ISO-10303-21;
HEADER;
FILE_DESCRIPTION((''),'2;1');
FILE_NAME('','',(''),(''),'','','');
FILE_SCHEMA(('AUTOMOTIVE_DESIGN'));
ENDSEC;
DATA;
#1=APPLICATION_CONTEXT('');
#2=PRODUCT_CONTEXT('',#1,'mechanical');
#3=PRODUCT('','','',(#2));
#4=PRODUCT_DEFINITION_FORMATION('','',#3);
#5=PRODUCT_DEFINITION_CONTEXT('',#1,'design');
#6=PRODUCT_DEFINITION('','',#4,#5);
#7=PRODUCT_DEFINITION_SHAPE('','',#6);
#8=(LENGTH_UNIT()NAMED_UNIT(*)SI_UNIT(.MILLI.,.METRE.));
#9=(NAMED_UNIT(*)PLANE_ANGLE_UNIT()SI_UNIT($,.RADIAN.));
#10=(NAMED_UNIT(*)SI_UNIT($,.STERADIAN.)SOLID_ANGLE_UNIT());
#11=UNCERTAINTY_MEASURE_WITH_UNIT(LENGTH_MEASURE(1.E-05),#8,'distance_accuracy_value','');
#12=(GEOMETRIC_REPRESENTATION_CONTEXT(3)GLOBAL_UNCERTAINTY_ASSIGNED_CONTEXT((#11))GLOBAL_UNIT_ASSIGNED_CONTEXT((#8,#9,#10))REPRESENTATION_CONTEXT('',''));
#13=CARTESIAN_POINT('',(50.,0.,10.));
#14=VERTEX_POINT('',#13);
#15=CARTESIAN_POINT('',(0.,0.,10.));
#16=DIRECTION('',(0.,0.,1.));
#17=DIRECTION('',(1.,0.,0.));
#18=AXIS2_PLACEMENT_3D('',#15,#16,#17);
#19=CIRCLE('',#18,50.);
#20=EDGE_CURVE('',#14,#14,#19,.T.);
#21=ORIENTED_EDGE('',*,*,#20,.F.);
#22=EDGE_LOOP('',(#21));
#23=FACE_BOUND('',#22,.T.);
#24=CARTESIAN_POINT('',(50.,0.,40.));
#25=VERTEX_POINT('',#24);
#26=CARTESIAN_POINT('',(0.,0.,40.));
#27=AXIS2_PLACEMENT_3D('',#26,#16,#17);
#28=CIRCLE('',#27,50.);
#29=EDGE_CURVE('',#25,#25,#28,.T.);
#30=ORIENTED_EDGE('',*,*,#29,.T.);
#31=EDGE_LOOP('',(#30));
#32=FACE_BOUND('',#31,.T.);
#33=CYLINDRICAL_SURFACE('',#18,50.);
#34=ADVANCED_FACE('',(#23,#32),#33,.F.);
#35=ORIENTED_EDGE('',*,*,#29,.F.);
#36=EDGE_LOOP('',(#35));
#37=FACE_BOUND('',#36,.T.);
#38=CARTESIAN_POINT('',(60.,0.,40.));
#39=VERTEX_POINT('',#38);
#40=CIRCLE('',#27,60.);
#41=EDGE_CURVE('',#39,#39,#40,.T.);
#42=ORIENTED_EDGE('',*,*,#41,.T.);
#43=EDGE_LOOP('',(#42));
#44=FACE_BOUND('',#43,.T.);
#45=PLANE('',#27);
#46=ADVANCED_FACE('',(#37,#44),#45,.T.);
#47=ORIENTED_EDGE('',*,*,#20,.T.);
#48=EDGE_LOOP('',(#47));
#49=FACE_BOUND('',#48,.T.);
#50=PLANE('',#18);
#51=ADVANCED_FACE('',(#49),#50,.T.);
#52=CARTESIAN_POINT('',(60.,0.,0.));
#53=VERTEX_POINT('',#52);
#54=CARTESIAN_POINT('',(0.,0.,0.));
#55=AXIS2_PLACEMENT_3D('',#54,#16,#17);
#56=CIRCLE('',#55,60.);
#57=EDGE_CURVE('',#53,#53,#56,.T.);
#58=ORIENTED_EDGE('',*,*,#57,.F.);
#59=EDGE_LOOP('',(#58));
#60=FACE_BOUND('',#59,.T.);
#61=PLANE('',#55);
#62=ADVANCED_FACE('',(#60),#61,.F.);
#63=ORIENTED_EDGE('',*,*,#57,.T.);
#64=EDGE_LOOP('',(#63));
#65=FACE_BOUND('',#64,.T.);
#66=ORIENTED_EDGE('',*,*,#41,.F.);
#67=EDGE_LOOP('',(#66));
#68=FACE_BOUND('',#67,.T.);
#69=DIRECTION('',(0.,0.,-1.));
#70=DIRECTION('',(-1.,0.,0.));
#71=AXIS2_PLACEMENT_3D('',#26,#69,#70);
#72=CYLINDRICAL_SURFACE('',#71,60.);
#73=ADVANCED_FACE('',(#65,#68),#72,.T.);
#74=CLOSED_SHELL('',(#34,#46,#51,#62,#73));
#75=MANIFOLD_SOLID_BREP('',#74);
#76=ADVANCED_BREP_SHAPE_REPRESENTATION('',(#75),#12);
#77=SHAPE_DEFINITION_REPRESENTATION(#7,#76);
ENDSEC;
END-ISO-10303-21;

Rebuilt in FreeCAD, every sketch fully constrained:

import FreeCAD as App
import Part
import Sketcher
from FreeCAD import Vector
Q = App.Units.Quantity

doc = App.newDocument("Part")
body = doc.addObject("PartDesign::Body", "Body")

sketch1 = doc.addObject("Sketcher::SketchObject", "Sketch")
body.addObject(sketch1)
sketch1.AttachmentSupport = (doc.XY_Plane, [""])
sketch1.MapMode = "FlatFace"
sketch1.addGeometry(Part.Circle(Vector(0, 0, 0), Vector(0, 0, 1), 60), False)
sketch1.addConstraint([
    Sketcher.Constraint("Coincident", 0, 3, -1, 1),
    Sketcher.Constraint("Diameter", 0, Q("120 mm")),
])
pad1 = doc.addObject("PartDesign::Pad", "Pad")
body.addObject(pad1)
pad1.Profile = sketch1
pad1.Length = 40

sketch2 = doc.addObject("Sketcher::SketchObject", "Sketch001")
body.addObject(sketch2)
sketch2.AttachmentSupport = (doc.XY_Plane, [""])
sketch2.MapMode = "FlatFace"
sketch2.AttachmentOffset = App.Placement(Vector(0, 0, 40), App.Rotation())
sketch2.addGeometry(Part.Circle(Vector(0, 0, 0), Vector(0, 0, 1), 50), False)
sketch2.addConstraint([
    Sketcher.Constraint("Coincident", 0, 3, -1, 1),
    Sketcher.Constraint("Diameter", 0, Q("100 mm")),
])
pocket1 = doc.addObject("PartDesign::Pocket", "Pocket")
body.addObject(pocket1)
pocket1.Profile = sketch2
pocket1.Length = 30

doc.recompute()
